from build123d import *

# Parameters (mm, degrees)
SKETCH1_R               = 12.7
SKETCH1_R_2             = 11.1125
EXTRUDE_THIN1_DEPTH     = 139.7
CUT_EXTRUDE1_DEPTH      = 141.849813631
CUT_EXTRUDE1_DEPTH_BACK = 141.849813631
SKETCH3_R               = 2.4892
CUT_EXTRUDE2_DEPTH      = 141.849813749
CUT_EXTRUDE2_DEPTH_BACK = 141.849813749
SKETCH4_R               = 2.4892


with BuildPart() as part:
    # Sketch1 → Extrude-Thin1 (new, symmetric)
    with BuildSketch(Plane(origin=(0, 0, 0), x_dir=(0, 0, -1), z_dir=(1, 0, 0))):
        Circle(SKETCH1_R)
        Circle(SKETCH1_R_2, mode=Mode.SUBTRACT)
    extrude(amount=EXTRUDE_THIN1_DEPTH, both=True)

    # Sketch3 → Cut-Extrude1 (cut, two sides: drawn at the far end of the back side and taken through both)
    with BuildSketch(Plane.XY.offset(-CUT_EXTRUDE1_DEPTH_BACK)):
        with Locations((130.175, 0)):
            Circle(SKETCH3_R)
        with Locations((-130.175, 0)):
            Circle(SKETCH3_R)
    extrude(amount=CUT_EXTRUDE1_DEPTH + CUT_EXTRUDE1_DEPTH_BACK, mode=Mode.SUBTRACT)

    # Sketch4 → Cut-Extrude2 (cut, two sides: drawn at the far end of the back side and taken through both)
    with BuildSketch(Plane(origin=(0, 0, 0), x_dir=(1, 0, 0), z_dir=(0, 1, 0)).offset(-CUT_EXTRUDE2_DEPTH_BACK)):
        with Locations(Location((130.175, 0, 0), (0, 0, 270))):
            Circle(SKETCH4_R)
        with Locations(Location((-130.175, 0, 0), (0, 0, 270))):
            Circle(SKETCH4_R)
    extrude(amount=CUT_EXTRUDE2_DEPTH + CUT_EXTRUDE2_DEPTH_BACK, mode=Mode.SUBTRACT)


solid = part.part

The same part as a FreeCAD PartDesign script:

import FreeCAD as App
import Part
import Sketcher
Q = App.Units.Quantity

doc = App.newDocument("Part")
body = doc.addObject("PartDesign::Body", "Body")

# Sketch on YZ plane
sketch1 = body.newObject("Sketcher::SketchObject", "Sketch")
sketch1.AttachmentSupport = (doc.getObject("YZ_Plane"), [""])
sketch1.MapMode = "FlatFace"
sketch1.addGeometry(Part.Circle(App.Vector(0, 0, 0), App.Vector(0, 0, 1), 13), False)
sketch1.addGeometry(Part.Circle(App.Vector(0, 0, 0), App.Vector(0, 0, 1), 11), False)
sketch1.addConstraint(Sketcher.Constraint("Coincident", 0, 3, -1, 1))
sketch1.addConstraint(Sketcher.Constraint("Coincident", 1, 3, -1, 1))
sketch1.addConstraint(Sketcher.Constraint("Diameter", 0, Q("1 in")))
sketch1.addConstraint(Sketcher.Constraint("Diameter", 1, Q("0.875 in")))
pad1 = body.newObject("PartDesign::Pad", "Pad")
pad1.Profile = sketch1
pad1.Length = Q("11 in")
pad1.Midplane = True

# Sketch on XY plane
sketch2 = body.newObject("Sketcher::SketchObject", "Sketch001")
sketch2.AttachmentSupport = (doc.getObject("XY_Plane"), [""])
sketch2.MapMode = "FlatFace"
sketch2.addGeometry(Part.Circle(App.Vector(130.2, 0, 0), App.Vector(0, 0, 1), 2.5), False)
sketch2.addGeometry(Part.Circle(App.Vector(-130.2, 0, 0), App.Vector(0, 0, 1), 2.5), False)
sketch2.addConstraint(Sketcher.Constraint("Equal", 0, 1))
sketch2.addConstraint(Sketcher.Constraint("Symmetric", 0, 3, 1, 3, -1, 1))
sketch2.addConstraint(Sketcher.Constraint("PointOnObject", 0, 3, -1))
sketch2.addConstraint(Sketcher.Constraint("Diameter", 0, Q("0.196 in")))
sketch2.addConstraint(Sketcher.Constraint("DistanceX", 1, 3, 0, 3, Q("10.25 in")))
pocket1 = body.newObject("PartDesign::Pocket", "Pocket")
pocket1.Profile = sketch2
pocket1.Type = "ThroughAll"
pocket1.Midplane = True

# Sketch on XZ plane
sketch3 = body.newObject("Sketcher::SketchObject", "Sketch002")
sketch3.AttachmentSupport = (doc.getObject("XZ_Plane"), [""])
sketch3.MapMode = "FlatFace"
sketch3.addGeometry(Part.Circle(App.Vector(130.2, 0, 0), App.Vector(0, 0, 1), 2.5), False)
sketch3.addGeometry(Part.Circle(App.Vector(-130.2, 0, 0), App.Vector(0, 0, 1), 2.5), False)
sketch3.addConstraint(Sketcher.Constraint("Equal", 0, 1))
sketch3.addConstraint(Sketcher.Constraint("Symmetric", 0, 3, 1, 3, -1, 1))
sketch3.addConstraint(Sketcher.Constraint("PointOnObject", 0, 3, -1))
sketch3.addConstraint(Sketcher.Constraint("Diameter", 0, Q("0.196 in")))
sketch3.addConstraint(Sketcher.Constraint("DistanceX", 1, 3, 0, 3, Q("10.25 in")))
pocket2 = body.newObject("PartDesign::Pocket", "Pocket001")
pocket2.Profile = sketch3
pocket2.Type = "ThroughAll"
pocket2.Midplane = True

doc.recompute()
